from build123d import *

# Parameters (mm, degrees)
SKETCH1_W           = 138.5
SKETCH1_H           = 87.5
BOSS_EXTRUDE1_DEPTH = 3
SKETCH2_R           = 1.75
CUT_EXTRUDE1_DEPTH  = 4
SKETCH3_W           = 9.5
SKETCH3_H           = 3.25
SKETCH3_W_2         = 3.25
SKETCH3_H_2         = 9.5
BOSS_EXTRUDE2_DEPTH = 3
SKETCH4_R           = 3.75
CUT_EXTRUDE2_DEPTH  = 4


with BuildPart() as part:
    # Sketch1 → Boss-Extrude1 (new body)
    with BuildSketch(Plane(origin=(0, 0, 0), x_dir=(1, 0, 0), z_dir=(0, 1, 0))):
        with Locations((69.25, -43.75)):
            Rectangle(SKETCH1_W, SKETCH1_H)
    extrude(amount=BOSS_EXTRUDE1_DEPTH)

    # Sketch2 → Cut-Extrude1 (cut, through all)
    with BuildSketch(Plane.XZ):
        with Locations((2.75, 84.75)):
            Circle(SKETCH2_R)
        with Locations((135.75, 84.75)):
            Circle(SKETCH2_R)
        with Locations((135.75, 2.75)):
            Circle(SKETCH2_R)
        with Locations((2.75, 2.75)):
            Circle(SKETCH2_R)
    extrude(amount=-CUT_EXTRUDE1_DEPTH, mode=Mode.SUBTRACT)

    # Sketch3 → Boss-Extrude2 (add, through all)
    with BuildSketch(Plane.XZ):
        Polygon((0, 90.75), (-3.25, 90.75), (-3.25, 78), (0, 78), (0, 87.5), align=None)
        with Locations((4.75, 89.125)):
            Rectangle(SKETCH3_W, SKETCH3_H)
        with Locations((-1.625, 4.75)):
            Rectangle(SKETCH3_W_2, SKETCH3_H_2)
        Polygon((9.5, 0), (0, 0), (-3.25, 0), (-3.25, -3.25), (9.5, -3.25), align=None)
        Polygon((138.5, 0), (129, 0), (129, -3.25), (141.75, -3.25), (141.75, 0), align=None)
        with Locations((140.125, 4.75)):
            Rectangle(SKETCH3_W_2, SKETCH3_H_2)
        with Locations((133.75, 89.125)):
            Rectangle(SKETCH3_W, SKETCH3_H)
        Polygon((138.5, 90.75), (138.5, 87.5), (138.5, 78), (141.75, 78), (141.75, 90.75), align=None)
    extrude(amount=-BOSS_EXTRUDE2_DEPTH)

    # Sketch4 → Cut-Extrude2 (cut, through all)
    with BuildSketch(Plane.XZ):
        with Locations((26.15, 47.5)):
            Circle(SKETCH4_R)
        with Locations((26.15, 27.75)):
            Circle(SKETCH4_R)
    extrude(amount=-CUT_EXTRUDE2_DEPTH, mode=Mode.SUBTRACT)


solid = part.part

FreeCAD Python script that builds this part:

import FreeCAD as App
import Part
import Sketcher
from FreeCAD import Vector


def add_polygon(sketch, points):
    """Adds a closed chain of lines whose ends are joined by coincident constraints."""
    first, n = sketch.GeometryCount, len(points)
    for a, b in zip(points, points[1:] + points[:1]):
        sketch.addGeometry(Part.LineSegment(App.Vector(*a, 0), App.Vector(*b, 0)), False)
    for i in range(n):
        sketch.addConstraint(Sketcher.Constraint("Coincident", first + i, 2, first + (i + 1) % n, 1))

doc = App.newDocument("Part")
body = doc.addObject("PartDesign::Body", "Body")

# Sketch on XZ plane
sketch1 = body.newObject("Sketcher::SketchObject", "Sketch")
sketch1.AttachmentSupport = (doc.getObject("XZ_Plane"), [""])
sketch1.MapMode = "FlatFace"
add_polygon(sketch1, [(0, 0), (0, 88), (138, 88), (138, 0)])  # lines 0-3
sketch1.addConstraint(Sketcher.Constraint("Vertical", 0))
sketch1.addConstraint(Sketcher.Constraint("Horizontal", 1))
sketch1.addConstraint(Sketcher.Constraint("Vertical", 2))
sketch1.addConstraint(Sketcher.Constraint("Horizontal", 3))
sketch1.addConstraint(Sketcher.Constraint("Coincident", 3, 2, -1, 1))
sketch1.addConstraint(Sketcher.Constraint("DistanceX", 1, 1, 1, 2, 138.5))
sketch1.addConstraint(Sketcher.Constraint("DistanceY", 0, 1, 0, 2, 87.5))
pad1 = body.newObject("PartDesign::Pad", "Pad")
pad1.Profile = sketch1
pad1.Length = 3
pad1.Reversed = True

# Sketch on XZ plane
sketch2 = body.newObject("Sketcher::SketchObject", "Sketch001")
sketch2.AttachmentSupport = (doc.getObject("XZ_Plane"), [""])
sketch2.MapMode = "FlatFace"
sketch2.addGeometry(Part.Circle(Vector(2.8, 84.8, 0), Vector(0, 0, 1), 1.8), False)
sketch2.addGeometry(Part.Circle(Vector(135.8, 84.8, 0), Vector(0, 0, 1), 1.8), False)
sketch2.addGeometry(Part.Circle(Vector(135.8, 2.8, 0), Vector(0, 0, 1), 1.8), False)
sketch2.addGeometry(Part.Circle(Vector(2.8, 2.8, 0), Vector(0, 0, 1), 1.8), False)
sketch2.addConstraint(Sketcher.Constraint("Equal", 0, 1))
sketch2.addConstraint(Sketcher.Constraint("Equal", 1, 2))
sketch2.addConstraint(Sketcher.Constraint("Equal", 2, 3))
sketch2.addConstraint(Sketcher.Constraint("Horizontal", 0, 3, 1, 3))
sketch2.addConstraint(Sketcher.Constraint("Horizontal", 2, 3, 3, 3))
sketch2.addConstraint(Sketcher.Constraint("Vertical", 1, 3, 2, 3))
sketch2.addConstraint(Sketcher.Constraint("Vertical", 0, 3, 3, 3))
sketch2.addConstraint(Sketcher.Constraint("Diameter", 0, 3.5))
sketch2.addConstraint(Sketcher.Constraint("DistanceX", 0, 3, 1, 3, 133.0))
sketch2.addConstraint(Sketcher.Constraint("DistanceY", 2, 3, 1, 3, 82.0))
sketch2.addConstraint(Sketcher.Constraint("DistanceX", -1, 1, 0, 3, 2.75))
sketch2.addConstraint(Sketcher.Constraint("DistanceY", -1, 1, 0, 3, 84.75))
pocket1 = body.newObject("PartDesign::Pocket", "Pocket")
pocket1.Profile = sketch2
pocket1.Type = "ThroughAll"

# Sketch on XZ plane
sketch3 = body.newObject("Sketcher::SketchObject", "Sketch002")
sketch3.AttachmentSupport = (doc.getObject("XZ_Plane"), [""])
sketch3.MapMode = "FlatFace"
add_polygon(sketch3, [(-3.2, 90.8), (-3.2, 78), (0, 78), (0, 87.5), (9.5, 87.5), (9.5, 90.8)])  # lines 0-5
add_polygon(sketch3, [(-3.2, 9.5), (-3.2, -3.2), (9.5, -3.2), (9.5, 0), (0, 0), (0, 9.5)])  # lines 6-11
add_polygon(sketch3, [(129, 0), (129, -3.2), (141.8, -3.2), (141.8, 9.5), (138.5, 9.5), (138.5, 0)])  # lines 12-17
add_polygon(sketch3, [(129, 90.8), (129, 87.5), (138.5, 87.5), (138.5, 78), (141.8, 78), (141.8, 90.8)])  # lines 18-23
sketch3.addConstraint(Sketcher.Constraint("Vertical", 0))
sketch3.addConstraint(Sketcher.Constraint("Horizontal", 1))
sketch3.addConstraint(Sketcher.Constraint("Vertical", 2))
sketch3.addConstraint(Sketcher.Constraint("Horizontal", 3))
sketch3.addConstraint(Sketcher.Constraint("Vertical", 4))
sketch3.addConstraint(Sketcher.Constraint("Horizontal", 5))
sketch3.addConstraint(Sketcher.Constraint("Vertical", 6))
sketch3.addConstraint(Sketcher.Constraint("Horizontal", 7))
sketch3.addConstraint(Sketcher.Constraint("Vertical", 8))
sketch3.addConstraint(Sketcher.Constraint("Horizontal", 9))
sketch3.addConstraint(Sketcher.Constraint("Vertical", 10))
sketch3.addConstraint(Sketcher.Constraint("Horizontal", 11))
sketch3.addConstraint(Sketcher.Constraint("Vertical", 12))
sketch3.addConstraint(Sketcher.Constraint("Horizontal", 13))
sketch3.addConstraint(Sketcher.Constraint("Vertical", 14))
sketch3.addConstraint(Sketcher.Constraint("Horizontal", 15))
sketch3.addConstraint(Sketcher.Constraint("Vertical", 16))
sketch3.addConstraint(Sketcher.Constraint("Horizontal", 17))
sketch3.addConstraint(Sketcher.Constraint("Vertical", 18))
sketch3.addConstraint(Sketcher.Constraint("Horizontal", 19))
sketch3.addConstraint(Sketcher.Constraint("Vertical", 20))
sketch3.addConstraint(Sketcher.Constraint("Horizontal", 21))
sketch3.addConstraint(Sketcher.Constraint("Vertical", 22))
sketch3.addConstraint(Sketcher.Constraint("Horizontal", 23))
sketch3.addConstraint(Sketcher.Constraint("Coincident", 9, 2, -1, 1))
sketch3.addConstraint(Sketcher.Constraint("PointOnObject", 1, 2, -2))
sketch3.addConstraint(Sketcher.Constraint("PointOnObject", 16, 2, -1))
sketch3.addConstraint(Sketcher.Constraint("Horizontal", 7, 2, 12, 2))
sketch3.addConstraint(Sketcher.Constraint("Horizontal", 11, 2, 14, 2))
sketch3.addConstraint(Sketcher.Constraint("Horizontal", 3, 2, 18, 2))
sketch3.addConstraint(Sketcher.Constraint("Horizontal", 1, 2, 20, 2))
sketch3.addConstraint(Sketcher.Constraint("Horizontal", 5, 2, 22, 2))
sketch3.addConstraint(Sketcher.Constraint("Vertical", 5, 2, 6, 2))
sketch3.addConstraint(Sketcher.Constraint("Vertical", 4, 2, 7, 2))
sketch3.addConstraint(Sketcher.Constraint("Vertical", 17, 2, 18, 2))
sketch3.addConstraint(Sketcher.Constraint("Vertical", 16, 2, 19, 2))
sketch3.addConstraint(Sketcher.Constraint("Vertical", 14, 2, 21, 2))
sketch3.addConstraint(Sketcher.Constraint("Equal", 7, 13))
sketch3.addConstraint(Sketcher.Constraint("Equal", 11, 15))
sketch3.addConstraint(Sketcher.Constraint("Equal", 23, 0))
sketch3.addConstraint(Sketcher.Constraint("Equal", 19, 2))
sketch3.addConstraint(Sketcher.Constraint("Equal", 0, 6))
sketch3.addConstraint(Sketcher.Constraint("Equal", 4, 8))
sketch3.addConstraint(Sketcher.Constraint("DistanceX", 3, 1, 3, 2, 9.5))
sketch3.addConstraint(Sketcher.Constraint("DistanceY", -1, 1, 0, 2, 78.0))
sketch3.addConstraint(Sketcher.Constraint("DistanceX", -1, 1, 12, 2, 129.0))
sketch3.addConstraint(Sketcher.Constraint("DistanceY", 6, 2, 5, 2, 94.0))
pad2 = body.newObject("PartDesign::Pad", "Pad001")
pad2.Profile = sketch3
pad2.Type = "UpToLast"
pad2.Reversed = True

# Sketch on XZ plane
sketch4 = body.newObject("Sketcher::SketchObject", "Sketch003")
sketch4.AttachmentSupport = (doc.getObject("XZ_Plane"), [""])
sketch4.MapMode = "FlatFace"
sketch4.addGeometry(Part.Circle(Vector(26.1, 47.5, 0), Vector(0, 0, 1), 3.8), False)
sketch4.addGeometry(Part.Circle(Vector(26.1, 27.8, 0), Vector(0, 0, 1), 3.8), False)
sketch4.addConstraint(Sketcher.Constraint("Equal", 0, 1))
sketch4.addConstraint(Sketcher.Constraint("Vertical", 0, 3, 1, 3))
sketch4.addConstraint(Sketcher.Constraint("Diameter", 0, 7.5))
sketch4.addConstraint(Sketcher.Constraint("DistanceY", -1, 1, 0, 3, 47.5))
sketch4.addConstraint(Sketcher.Constraint("DistanceX", -1, 1, 0, 3, 26.15))
sketch4.addConstraint(Sketcher.Constraint("DistanceY", -1, 1, 1, 3, 27.75))
pocket2 = body.newObject("PartDesign::Pocket", "Pocket001")
pocket2.Profile = sketch4
pocket2.Type = "ThroughAll"

doc.recompute()
